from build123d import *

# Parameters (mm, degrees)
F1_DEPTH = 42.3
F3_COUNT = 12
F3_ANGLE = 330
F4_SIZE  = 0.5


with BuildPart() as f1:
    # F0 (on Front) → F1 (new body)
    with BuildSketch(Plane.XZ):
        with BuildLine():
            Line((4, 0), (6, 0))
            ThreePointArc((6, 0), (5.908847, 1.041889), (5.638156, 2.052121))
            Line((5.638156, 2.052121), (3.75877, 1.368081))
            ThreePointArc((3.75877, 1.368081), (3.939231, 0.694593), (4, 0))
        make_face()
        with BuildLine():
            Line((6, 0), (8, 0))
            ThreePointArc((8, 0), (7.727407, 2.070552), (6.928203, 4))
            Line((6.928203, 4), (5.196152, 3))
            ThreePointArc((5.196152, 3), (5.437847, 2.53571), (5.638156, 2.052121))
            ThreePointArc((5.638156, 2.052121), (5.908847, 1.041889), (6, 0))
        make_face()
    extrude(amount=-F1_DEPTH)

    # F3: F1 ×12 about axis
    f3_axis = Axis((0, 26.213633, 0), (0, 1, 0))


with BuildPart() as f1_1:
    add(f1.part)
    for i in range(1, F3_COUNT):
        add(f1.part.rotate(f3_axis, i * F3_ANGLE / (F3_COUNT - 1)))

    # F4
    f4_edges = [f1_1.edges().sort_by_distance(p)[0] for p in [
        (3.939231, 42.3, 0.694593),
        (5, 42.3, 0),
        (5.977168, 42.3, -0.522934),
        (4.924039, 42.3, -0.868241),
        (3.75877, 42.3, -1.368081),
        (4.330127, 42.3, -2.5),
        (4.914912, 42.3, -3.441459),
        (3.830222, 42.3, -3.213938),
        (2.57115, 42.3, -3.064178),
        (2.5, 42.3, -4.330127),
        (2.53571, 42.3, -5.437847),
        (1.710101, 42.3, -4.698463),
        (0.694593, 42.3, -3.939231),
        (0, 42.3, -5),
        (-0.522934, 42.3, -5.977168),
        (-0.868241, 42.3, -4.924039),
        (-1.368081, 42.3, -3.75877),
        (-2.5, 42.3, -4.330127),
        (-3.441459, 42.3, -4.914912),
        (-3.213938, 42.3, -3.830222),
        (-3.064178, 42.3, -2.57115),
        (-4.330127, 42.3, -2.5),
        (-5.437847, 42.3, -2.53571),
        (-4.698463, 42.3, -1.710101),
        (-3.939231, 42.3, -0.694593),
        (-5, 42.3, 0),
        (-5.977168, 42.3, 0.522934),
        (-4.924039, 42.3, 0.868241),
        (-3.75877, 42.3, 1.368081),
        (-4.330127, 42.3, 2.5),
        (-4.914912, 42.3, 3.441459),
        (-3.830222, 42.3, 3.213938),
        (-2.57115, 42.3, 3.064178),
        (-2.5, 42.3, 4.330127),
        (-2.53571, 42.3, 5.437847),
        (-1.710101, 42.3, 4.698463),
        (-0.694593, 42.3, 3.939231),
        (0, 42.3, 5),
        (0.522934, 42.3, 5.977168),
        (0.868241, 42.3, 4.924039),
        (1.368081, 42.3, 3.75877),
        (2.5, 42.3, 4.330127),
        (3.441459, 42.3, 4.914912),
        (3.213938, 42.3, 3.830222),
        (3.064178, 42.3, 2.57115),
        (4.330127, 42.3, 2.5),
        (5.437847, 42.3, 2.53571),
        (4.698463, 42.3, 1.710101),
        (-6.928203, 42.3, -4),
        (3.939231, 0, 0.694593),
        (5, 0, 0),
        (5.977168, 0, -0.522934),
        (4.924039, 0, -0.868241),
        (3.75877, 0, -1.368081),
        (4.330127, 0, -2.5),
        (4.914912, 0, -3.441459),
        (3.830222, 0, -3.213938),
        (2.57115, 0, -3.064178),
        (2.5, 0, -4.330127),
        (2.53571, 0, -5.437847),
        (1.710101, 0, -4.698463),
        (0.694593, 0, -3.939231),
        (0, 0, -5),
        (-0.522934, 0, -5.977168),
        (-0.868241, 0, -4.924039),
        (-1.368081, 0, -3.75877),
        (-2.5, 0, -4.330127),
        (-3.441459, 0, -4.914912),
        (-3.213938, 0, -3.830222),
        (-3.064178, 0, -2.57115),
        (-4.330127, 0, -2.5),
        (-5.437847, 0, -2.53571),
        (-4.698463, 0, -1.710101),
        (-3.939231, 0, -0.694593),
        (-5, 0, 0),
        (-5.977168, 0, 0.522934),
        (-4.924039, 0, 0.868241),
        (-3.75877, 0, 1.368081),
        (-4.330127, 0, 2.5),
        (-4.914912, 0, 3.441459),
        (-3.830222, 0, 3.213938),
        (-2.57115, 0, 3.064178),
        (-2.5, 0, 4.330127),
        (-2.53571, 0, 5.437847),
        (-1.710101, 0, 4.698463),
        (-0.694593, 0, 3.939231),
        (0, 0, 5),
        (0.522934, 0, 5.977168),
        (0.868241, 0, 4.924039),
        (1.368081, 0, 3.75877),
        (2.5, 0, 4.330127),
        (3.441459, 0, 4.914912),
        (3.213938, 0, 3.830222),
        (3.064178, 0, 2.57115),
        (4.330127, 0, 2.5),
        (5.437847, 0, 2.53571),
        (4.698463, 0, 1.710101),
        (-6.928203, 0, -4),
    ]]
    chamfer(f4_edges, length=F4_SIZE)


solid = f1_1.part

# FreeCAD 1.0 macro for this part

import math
import FreeCAD as App
import Part
import Sketcher
Q = App.Units.Quantity


def edges_at(feature, points):
    """Names of the edges that pass closest to the given points."""
    edges = feature.Shape.Edges
    near = lambda p: min(range(len(edges)), key=lambda i: edges[i].distToShape(Part.Vertex(*p))[0])
    return sorted({f"Edge{near(p) + 1}" for p in points})

doc = App.newDocument("Part")
params = doc.addObject("Spreadsheet::Sheet", "Params")
for row, (alias, value) in enumerate([
    ("sketch1_width", "4 mm"),
    ("sketch1_length", "2 mm"),
    ("pad1_length", "42.3 mm"),
    ("chamfer_size", "0.5 mm"),
], start=1):
    params.set(f"A{row}", alias)
    params.set(f"B{row}", "=" + value)
    params.setAlias(f"B{row}", alias)

body = doc.addObject("PartDesign::Body", "Body")

sketch1 = body.newObject("Sketcher::SketchObject", "Sketch")
sketch1.AttachmentSupport = (doc.getObject("XZ_Plane"), [""])
sketch1.MapMode = "FlatFace"
sketch1.addGeometry(Part.LineSegment(App.Vector(4, 0, 0), App.Vector(8, 0, 0)), False)
sketch1.addGeometry(Part.ArcOfCircle(Part.Circle(App.Vector(0.000011, 0.000003, 0), App.Vector(0, 0, 1), 7.999989), math.radians(-0.000018), math.radians(30.000024)), False)
sketch1.addGeometry(Part.LineSegment(App.Vector(6.928203, 4, 0), App.Vector(5.196152, 3, 0)), False)
sketch1.addGeometry(Part.ArcOfCircle(Part.Circle(App.Vector(0.000112, 0.000048, 0), App.Vector(0, 0, 1), 5.999879), math.radians(19.999936), math.radians(30.00014)), False)
sketch1.addGeometry(Part.LineSegment(App.Vector(5.638156, 2.052121, 0), App.Vector(3.75877, 1.368081, 0)), False)
sketch1.addGeometry(Part.ArcOfCircle(Part.Circle(App.Vector(0.000013, 0.000001, 0), App.Vector(0, 0, 1), 3.999987), math.radians(-0.000019), math.radians(20.000052)), False)
sketch1.addConstraint(Sketcher.Constraint("Coincident", 0, 2, 1, 1))
sketch1.addConstraint(Sketcher.Constraint("Coincident", 1, 2, 2, 1))
sketch1.addConstraint(Sketcher.Constraint("Coincident", 2, 2, 3, 2))
sketch1.addConstraint(Sketcher.Constraint("Coincident", 3, 1, 4, 1))
sketch1.addConstraint(Sketcher.Constraint("Coincident", 4, 2, 5, 2))
sketch1.addConstraint(Sketcher.Constraint("Coincident", 5, 1, 0, 1))
sketch1.addConstraint(Sketcher.Constraint("Horizontal", 0))
sketch1.addConstraint(Sketcher.Constraint("Coincident", 5, 3, 1, 3))
sketch1.addConstraint(Sketcher.Constraint("PointOnObject", 5, 3, -1))
sketch1.addConstraint(Sketcher.Constraint("PointOnObject", 0, 2, -1))
sketch1.addConstraint(Sketcher.Constraint("Equal", 2, 4))
sketch1.addConstraint(Sketcher.Constraint("DistanceX", 0, 1, 0, 2, 4.0))
sketch1.addConstraint(Sketcher.Constraint("Angle", 2, Q("-150.000003 deg")))
sketch1.addConstraint(Sketcher.Constraint("Angle", 4, Q("-160.000015 deg")))
sketch1.addConstraint(Sketcher.Constraint("Distance", 2, 2.0))
sketch1.addConstraint(Sketcher.Constraint("DistanceX", -1, 1, 0, 2, 8.0))
sketch1.addConstraint(Sketcher.Constraint("DistanceY", -1, 1, 1, 2, 4.0))
sketch1.addConstraint(Sketcher.Constraint("Radius", 1, 7.999989))
sketch1.addConstraint(Sketcher.Constraint("Radius", 3, 5.999879))
sketch1.addConstraint(Sketcher.Constraint("DistanceY", -1, 1, 3, 1, 2.052121))
sketch1.setExpression("Constraints[11]", "Params.sketch1_width")
sketch1.setExpression("Constraints[14]", "Params.sketch1_length")
pad1 = body.newObject("PartDesign::Pad", "Pad")
pad1.Profile = sketch1
pad1.setExpression("Length", "Params.pad1_length")
pad1.Reversed = True
body2 = doc.addObject("PartDesign::Body", "Body001")
doc.recompute()

body2.BaseFeature = body
doc.recompute()

body3 = doc.addObject("PartDesign::Body", "Body002")
body3.BaseFeature = body
body3.Placement = App.Placement(App.Vector(0, 0, 0), App.Rotation(App.Vector(0, 1, 0), 30))
boolean = body2.newObject("PartDesign::Boolean", "Boolean")
boolean.Type = "Fuse"
boolean.addObjects([body3])
doc.recompute()

body4 = doc.addObject("PartDesign::Body", "Body003")
body4.BaseFeature = body
body4.Placement = App.Placement(App.Vector(0, 0, 0), App.Rotation(App.Vector(0, 1, 0), 60))
boolean2 = body2.newObject("PartDesign::Boolean", "Boolean001")
boolean2.Type = "Fuse"
boolean2.addObjects([body4])
doc.recompute()

body5 = doc.addObject("PartDesign::Body", "Body004")
body5.BaseFeature = body
body5.Placement = App.Placement(App.Vector(0, 0, 0), App.Rotation(App.Vector(0, 1, 0), 90))
boolean3 = body2.newObject("PartDesign::Boolean", "Boolean002")
boolean3.Type = "Fuse"
boolean3.addObjects([body5])
doc.recompute()

body6 = doc.addObject("PartDesign::Body", "Body005")
body6.BaseFeature = body
body6.Placement = App.Placement(App.Vector(0, 0, 0), App.Rotation(App.Vector(0, 1, 0), 120))
boolean4 = body2.newObject("PartDesign::Boolean", "Boolean003")
boolean4.Type = "Fuse"
boolean4.addObjects([body6])
doc.recompute()

body7 = doc.addObject("PartDesign::Body", "Body006")
body7.BaseFeature = body
body7.Placement = App.Placement(App.Vector(0, 0, 0), App.Rotation(App.Vector(0, 1, 0), 150))
boolean5 = body2.newObject("PartDesign::Boolean", "Boolean004")
boolean5.Type = "Fuse"
boolean5.addObjects([body7])
doc.recompute()

body8 = doc.addObject("PartDesign::Body", "Body007")
body8.BaseFeature = body
body8.Placement = App.Placement(App.Vector(0, 0, 0), App.Rotation(App.Vector(0, 1, 0), 180))
boolean6 = body2.newObject("PartDesign::Boolean", "Boolean005")
boolean6.Type = "Fuse"
boolean6.addObjects([body8])
doc.recompute()

body9 = doc.addObject("PartDesign::Body", "Body008")
body9.BaseFeature = body
body9.Placement = App.Placement(App.Vector(0, 0, 0), App.Rotation(App.Vector(0, 1, 0), 210))
boolean7 = body2.newObject("PartDesign::Boolean", "Boolean006")
boolean7.Type = "Fuse"
boolean7.addObjects([body9])
doc.recompute()

body10 = doc.addObject("PartDesign::Body", "Body009")
body10.BaseFeature = body
body10.Placement = App.Placement(App.Vector(0, 0, 0), App.Rotation(App.Vector(0, 1, 0), 240))
boolean8 = body2.newObject("PartDesign::Boolean", "Boolean007")
boolean8.Type = "Fuse"
boolean8.addObjects([body10])
doc.recompute()

body11 = doc.addObject("PartDesign::Body", "Body010")
body11.BaseFeature = body
body11.Placement = App.Placement(App.Vector(0, 0, 0), App.Rotation(App.Vector(0, 1, 0), 270))
boolean9 = body2.newObject("PartDesign::Boolean", "Boolean008")
boolean9.Type = "Fuse"
boolean9.addObjects([body11])
doc.recompute()

body12 = doc.addObject("PartDesign::Body", "Body011")
body12.BaseFeature = body
body12.Placement = App.Placement(App.Vector(0, 0, 0), App.Rotation(App.Vector(0, 1, 0), 300))
boolean10 = body2.newObject("PartDesign::Boolean", "Boolean009")
boolean10.Type = "Fuse"
boolean10.addObjects([body12])
doc.recompute()

body.Placement = App.Placement(App.Vector(0, 0, 0), App.Rotation(App.Vector(0, 1, 0), 330))
boolean11 = body2.newObject("PartDesign::Boolean", "Boolean010")
boolean11.Type = "Fuse"
boolean11.addObjects([body])
doc.recompute()

chamfer = body2.newObject("PartDesign::Chamfer", "Chamfer")
chamfer.Base = (boolean11, edges_at(boolean11, [
    (3.939, 42.3, 0.695),
    (5, 42.3, 0),
    (5.977, 42.3, -0.523),
    (4.924, 42.3, -0.868),
    (3.759, 42.3, -1.368),
    (4.33, 42.3, -2.5),
    (4.915, 42.3, -3.441),
    (3.83, 42.3, -3.214),
    (2.571, 42.3, -3.064),
    (2.5, 42.3, -4.33),
    (2.536, 42.3, -5.438),
    (1.71, 42.3, -4.698),
    (0.695, 42.3, -3.939),
    (0, 42.3, -5),
    (-0.523, 42.3, -5.977),
    (-0.868, 42.3, -4.924),
    (-1.368, 42.3, -3.759),
    (-2.5, 42.3, -4.33),
    (-3.441, 42.3, -4.915),
    (-3.214, 42.3, -3.83),
    (-3.064, 42.3, -2.571),
    (-4.33, 42.3, -2.5),
    (-5.438, 42.3, -2.536),
    (-4.698, 42.3, -1.71),
    (-3.939, 42.3, -0.695),
    (-5, 42.3, 0),
    (-5.977, 42.3, 0.523),
    (-4.924, 42.3, 0.868),
    (-3.759, 42.3, 1.368),
    (-4.33, 42.3, 2.5),
    (-4.915, 42.3, 3.441),
    (-3.83, 42.3, 3.214),
    (-2.571, 42.3, 3.064),
    (-2.5, 42.3, 4.33),
    (-2.536, 42.3, 5.438),
    (-1.71, 42.3, 4.698),
    (-0.695, 42.3, 3.939),
    (0, 42.3, 5),
    (0.523, 42.3, 5.977),
    (0.868, 42.3, 4.924),
    (1.368, 42.3, 3.759),
    (2.5, 42.3, 4.33),
    (3.441, 42.3, 4.915),
    (3.214, 42.3, 3.83),
    (3.064, 42.3, 2.571),
    (4.33, 42.3, 2.5),
    (5.438, 42.3, 2.536),
    (4.698, 42.3, 1.71),
    (-7.727, 42.3, -2.071),
    (3.939, 0, 0.695),
    (5, 0, 0),
    (5.977, 0, -0.523),
    (4.924, 0, -0.868),
    (3.759, 0, -1.368),
    (4.33, 0, -2.5),
    (4.915, 0, -3.441),
    (3.83, 0, -3.214),
    (2.571, 0, -3.064),
    (2.5, 0, -4.33),
    (2.536, 0, -5.438),
    (1.71, 0, -4.698),
    (0.695, 0, -3.939),
    (0, 0, -5),
    (-0.523, 0, -5.977),
    (-0.868, 0, -4.924),
    (-1.368, 0, -3.759),
    (-2.5, 0, -4.33),
    (-3.441, 0, -4.915),
    (-3.214, 0, -3.83),
    (-3.064, 0, -2.571),
    (-4.33, 0, -2.5),
    (-5.438, 0, -2.536),
    (-4.698, 0, -1.71),
    (-3.939, 0, -0.695),
    (-5, 0, 0),
    (-5.977, 0, 0.523),
    (-4.924, 0, 0.868),
    (-3.759, 0, 1.368),
    (-4.33, 0, 2.5),
    (-4.915, 0, 3.441),
    (-3.83, 0, 3.214),
    (-2.571, 0, 3.064),
    (-2.5, 0, 4.33),
    (-2.536, 0, 5.438),
    (-1.71, 0, 4.698),
    (-0.695, 0, 3.939),
    (0, 0, 5),
    (0.523, 0, 5.977),
    (0.868, 0, 4.924),
    (1.368, 0, 3.759),
    (2.5, 0, 4.33),
    (3.441, 0, 4.915),
    (3.214, 0, 3.83),
    (3.064, 0, 2.571),
    (4.33, 0, 2.5),
    (5.438, 0, 2.536),
    (4.698, 0, 1.71),
    (-7.727, 0, -2.071),
]))
chamfer.setExpression("Size", "Params.chamfer_size")

doc.recompute()
